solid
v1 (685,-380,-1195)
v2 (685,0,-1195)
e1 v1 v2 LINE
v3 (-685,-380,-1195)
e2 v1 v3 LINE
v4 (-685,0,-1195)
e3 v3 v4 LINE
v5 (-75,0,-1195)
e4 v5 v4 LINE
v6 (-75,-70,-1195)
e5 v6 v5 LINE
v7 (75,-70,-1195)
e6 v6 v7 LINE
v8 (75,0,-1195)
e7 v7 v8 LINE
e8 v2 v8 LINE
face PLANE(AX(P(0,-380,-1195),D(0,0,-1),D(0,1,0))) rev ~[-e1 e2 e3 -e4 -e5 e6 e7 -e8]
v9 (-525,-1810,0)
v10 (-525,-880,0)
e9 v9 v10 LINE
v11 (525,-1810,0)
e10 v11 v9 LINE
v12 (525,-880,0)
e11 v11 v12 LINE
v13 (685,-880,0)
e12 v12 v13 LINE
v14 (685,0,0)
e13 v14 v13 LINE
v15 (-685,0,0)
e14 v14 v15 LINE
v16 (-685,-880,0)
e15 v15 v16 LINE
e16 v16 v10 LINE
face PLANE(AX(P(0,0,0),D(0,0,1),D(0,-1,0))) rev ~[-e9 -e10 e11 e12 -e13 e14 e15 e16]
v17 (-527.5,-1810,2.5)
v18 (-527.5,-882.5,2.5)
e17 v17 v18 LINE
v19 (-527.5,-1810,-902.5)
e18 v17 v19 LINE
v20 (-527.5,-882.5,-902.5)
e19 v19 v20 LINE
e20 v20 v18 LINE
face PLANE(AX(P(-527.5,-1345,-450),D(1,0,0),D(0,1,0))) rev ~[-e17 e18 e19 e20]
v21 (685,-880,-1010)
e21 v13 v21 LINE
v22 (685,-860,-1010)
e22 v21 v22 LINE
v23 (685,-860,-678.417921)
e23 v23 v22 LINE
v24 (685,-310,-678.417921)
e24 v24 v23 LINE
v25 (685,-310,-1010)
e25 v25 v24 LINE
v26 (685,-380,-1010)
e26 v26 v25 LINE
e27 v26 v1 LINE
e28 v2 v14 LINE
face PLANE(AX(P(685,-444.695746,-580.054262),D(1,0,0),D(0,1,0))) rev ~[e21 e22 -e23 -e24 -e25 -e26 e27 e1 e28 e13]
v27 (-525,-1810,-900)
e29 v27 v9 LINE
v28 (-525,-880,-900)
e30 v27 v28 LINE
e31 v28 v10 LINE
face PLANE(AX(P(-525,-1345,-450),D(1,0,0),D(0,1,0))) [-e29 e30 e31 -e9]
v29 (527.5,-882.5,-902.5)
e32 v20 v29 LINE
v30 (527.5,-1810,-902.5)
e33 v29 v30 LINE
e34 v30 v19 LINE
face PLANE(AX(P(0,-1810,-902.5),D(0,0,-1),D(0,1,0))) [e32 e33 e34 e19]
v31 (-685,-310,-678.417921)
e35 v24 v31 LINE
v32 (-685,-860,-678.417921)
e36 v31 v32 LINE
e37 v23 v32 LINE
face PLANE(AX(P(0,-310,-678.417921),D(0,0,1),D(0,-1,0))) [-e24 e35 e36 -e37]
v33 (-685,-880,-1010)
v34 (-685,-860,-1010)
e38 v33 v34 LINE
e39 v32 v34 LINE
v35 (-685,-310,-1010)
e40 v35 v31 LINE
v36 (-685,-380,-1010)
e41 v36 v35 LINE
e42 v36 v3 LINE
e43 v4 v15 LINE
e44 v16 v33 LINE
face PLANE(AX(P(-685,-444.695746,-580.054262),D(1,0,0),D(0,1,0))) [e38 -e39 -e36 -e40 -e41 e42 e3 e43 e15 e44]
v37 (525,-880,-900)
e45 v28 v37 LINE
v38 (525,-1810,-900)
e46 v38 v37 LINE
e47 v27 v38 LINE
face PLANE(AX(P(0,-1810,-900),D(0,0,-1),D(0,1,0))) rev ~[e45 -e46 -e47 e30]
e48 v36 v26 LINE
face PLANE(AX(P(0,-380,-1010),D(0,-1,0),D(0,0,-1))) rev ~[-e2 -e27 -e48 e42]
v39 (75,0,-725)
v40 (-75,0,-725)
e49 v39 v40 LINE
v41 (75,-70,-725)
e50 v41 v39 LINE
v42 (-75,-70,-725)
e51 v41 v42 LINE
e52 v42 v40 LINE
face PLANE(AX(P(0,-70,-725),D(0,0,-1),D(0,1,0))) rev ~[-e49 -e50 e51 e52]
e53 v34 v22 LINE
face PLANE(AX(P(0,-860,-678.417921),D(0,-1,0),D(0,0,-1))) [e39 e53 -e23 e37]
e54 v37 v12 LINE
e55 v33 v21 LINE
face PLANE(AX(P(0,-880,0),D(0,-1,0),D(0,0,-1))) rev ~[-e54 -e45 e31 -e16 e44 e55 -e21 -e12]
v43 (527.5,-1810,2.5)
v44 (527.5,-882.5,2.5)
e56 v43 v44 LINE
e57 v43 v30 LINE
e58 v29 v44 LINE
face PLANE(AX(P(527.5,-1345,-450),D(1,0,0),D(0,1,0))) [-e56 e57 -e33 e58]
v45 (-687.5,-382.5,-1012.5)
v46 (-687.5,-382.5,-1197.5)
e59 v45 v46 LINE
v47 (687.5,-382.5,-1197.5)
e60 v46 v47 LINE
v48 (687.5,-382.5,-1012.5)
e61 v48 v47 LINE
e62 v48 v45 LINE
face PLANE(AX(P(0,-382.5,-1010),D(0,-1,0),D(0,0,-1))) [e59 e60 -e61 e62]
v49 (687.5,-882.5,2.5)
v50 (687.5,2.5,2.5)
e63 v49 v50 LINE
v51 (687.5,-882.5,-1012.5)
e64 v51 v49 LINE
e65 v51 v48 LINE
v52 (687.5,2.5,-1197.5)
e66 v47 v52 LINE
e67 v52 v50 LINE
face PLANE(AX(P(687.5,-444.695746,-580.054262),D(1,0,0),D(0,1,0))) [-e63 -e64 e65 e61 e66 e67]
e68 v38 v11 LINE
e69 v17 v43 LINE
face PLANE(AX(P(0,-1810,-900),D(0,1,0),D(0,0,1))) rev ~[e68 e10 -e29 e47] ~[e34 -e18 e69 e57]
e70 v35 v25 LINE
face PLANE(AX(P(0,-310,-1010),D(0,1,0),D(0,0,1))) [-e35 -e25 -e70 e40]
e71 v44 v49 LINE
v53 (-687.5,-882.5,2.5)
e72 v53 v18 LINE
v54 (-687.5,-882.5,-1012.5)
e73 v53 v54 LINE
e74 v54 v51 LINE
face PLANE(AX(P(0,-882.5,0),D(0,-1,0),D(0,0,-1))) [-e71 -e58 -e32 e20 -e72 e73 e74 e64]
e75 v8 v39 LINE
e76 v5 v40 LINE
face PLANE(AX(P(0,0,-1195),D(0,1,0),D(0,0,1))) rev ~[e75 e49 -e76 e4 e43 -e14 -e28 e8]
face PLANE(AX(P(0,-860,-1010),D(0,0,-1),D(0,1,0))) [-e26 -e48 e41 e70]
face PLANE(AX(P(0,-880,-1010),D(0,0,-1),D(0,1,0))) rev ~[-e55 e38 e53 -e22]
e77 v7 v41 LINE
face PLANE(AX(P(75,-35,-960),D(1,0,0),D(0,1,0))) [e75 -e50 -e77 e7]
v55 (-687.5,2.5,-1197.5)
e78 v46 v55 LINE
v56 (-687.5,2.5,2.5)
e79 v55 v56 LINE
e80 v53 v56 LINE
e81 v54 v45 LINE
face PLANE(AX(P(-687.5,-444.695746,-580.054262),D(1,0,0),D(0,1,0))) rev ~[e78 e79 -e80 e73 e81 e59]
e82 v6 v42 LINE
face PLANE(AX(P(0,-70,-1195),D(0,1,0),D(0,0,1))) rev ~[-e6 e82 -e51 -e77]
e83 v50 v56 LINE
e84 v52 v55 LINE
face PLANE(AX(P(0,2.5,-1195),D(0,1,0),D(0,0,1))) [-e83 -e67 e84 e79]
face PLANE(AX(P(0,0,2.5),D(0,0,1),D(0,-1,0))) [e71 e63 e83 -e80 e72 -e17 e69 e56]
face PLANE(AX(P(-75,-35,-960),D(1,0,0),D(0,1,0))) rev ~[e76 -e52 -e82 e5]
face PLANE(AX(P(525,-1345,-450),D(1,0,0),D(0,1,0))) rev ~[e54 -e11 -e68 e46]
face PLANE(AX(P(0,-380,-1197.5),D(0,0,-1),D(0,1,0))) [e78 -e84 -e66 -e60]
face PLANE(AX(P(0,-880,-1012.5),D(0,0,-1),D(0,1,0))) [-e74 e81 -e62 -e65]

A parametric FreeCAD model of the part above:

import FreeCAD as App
import Part
import Sketcher

V = App.Vector
Q = App.Units.Quantity


def faces_at(feature, points):
    """Names of the faces that lie closest to the given points."""
    faces = feature.Shape.Faces
    near = lambda p: min(range(len(faces)), key=lambda i: faces[i].distToShape(Part.Vertex(*p))[0])
    return sorted({f"Face{near(p) + 1}" for p in points})

doc = App.newDocument("Part")
body = doc.addObject("PartDesign::Body", "Body")

# Sketch on YZ plane
sketch1 = body.newObject("Sketcher::SketchObject", "Sketch")
sketch1.AttachmentSupport = (doc.getObject("YZ_Plane"), [""])
sketch1.MapMode = "FlatFace"
sketch1.addGeometry([
    Part.LineSegment(V(0, 0, 0), V(-880, 0, 0)),  # 0
    Part.LineSegment(V(-880, 0, 0), V(-880, -1010, 0)),  # 1
    Part.LineSegment(V(-880, -1010, 0), V(-380, -1010, 0)),  # 2
    Part.LineSegment(V(-380, -1010, 0), V(-380, -1195, 0)),  # 3
    Part.LineSegment(V(-380, -1195, 0), V(0, -1195, 0)),  # 4
    Part.LineSegment(V(0, -1195, 0), V(0, 0, 0)),  # 5
], False)
sketch1.addConstraint([
    Sketcher.Constraint("Coincident", 0, 2, 1, 1),
    Sketcher.Constraint("Coincident", 1, 2, 2, 1),
    Sketcher.Constraint("Coincident", 2, 2, 3, 1),
    Sketcher.Constraint("Coincident", 3, 2, 4, 1),
    Sketcher.Constraint("Coincident", 4, 2, 5, 1),
    Sketcher.Constraint("Coincident", 5, 2, 0, 1),
    Sketcher.Constraint("Horizontal", 0),
    Sketcher.Constraint("Vertical", 1),
    Sketcher.Constraint("Horizontal", 2),
    Sketcher.Constraint("Vertical", 3),
    Sketcher.Constraint("Horizontal", 4),
    Sketcher.Constraint("Vertical", 5),
    Sketcher.Constraint("Coincident", 5, 2, -1, 1),
    Sketcher.Constraint("DistanceX", 0, 2, 0, 1, Q("880 mm")),
    Sketcher.Constraint("DistanceX", 2, 1, 2, 2, Q("500 mm")),
    Sketcher.Constraint("DistanceY", 1, 2, 1, 1, Q("1010 mm")),
    Sketcher.Constraint("DistanceY", 3, 2, 3, 1, Q("185 mm")),
])
pad1 = body.newObject("PartDesign::Pad", "Pad")
pad1.Profile = sketch1
pad1.Length = 1370
pad1.Midplane = True

# Sketch on YZ plane
sketch2 = body.newObject("Sketcher::SketchObject", "Sketch001")
sketch2.AttachmentSupport = (doc.getObject("YZ_Plane"), [""])
sketch2.MapMode = "FlatFace"
sketch2.addGeometry([
    Part.LineSegment(V(-1810, 0, 0), V(-1810, -900, 0)),
    Part.LineSegment(V(-1810, -900, 0), V(-880, -900, 0)),
    Part.LineSegment(V(-880, -900, 0), V(-880, 0, 0)),
    Part.LineSegment(V(-880, 0, 0), V(-1810, 0, 0)),
], False)
sketch2.addConstraint([
    Sketcher.Constraint("Coincident", 0, 2, 1, 1),
    Sketcher.Constraint("Coincident", 1, 2, 2, 1),
    Sketcher.Constraint("Coincident", 2, 2, 3, 1),
    Sketcher.Constraint("Coincident", 3, 2, 0, 1),
    Sketcher.Constraint("Vertical", 0),
    Sketcher.Constraint("Horizontal", 1),
    Sketcher.Constraint("Vertical", 2),
    Sketcher.Constraint("Horizontal", 3),
    Sketcher.Constraint("PointOnObject", 2, 2, -1),
    Sketcher.Constraint("DistanceX", 1, 1, 1, 2, Q("930 mm")),
    Sketcher.Constraint("DistanceY", 0, 2, 0, 1, Q("900 mm")),
    Sketcher.Constraint("DistanceX", 0, 2, -1, 1, Q("1810 mm")),
])
pad2 = body.newObject("PartDesign::Pad", "Pad001")
pad2.Profile = sketch2
pad2.Length = 1050
pad2.Midplane = True
doc.recompute()

thickness = body.newObject("PartDesign::Thickness", "Thickness")
thickness.Base = (pad2, faces_at(pad2, [(0, -1810, -450)]))
thickness.Value = 2.5
thickness.Reversed = False
thickness.Join = "Intersection"

# Sketch on YZ plane
sketch3 = body.newObject("Sketcher::SketchObject", "Sketch002")
sketch3.AttachmentSupport = (doc.getObject("YZ_Plane"), [""])
sketch3.MapMode = "FlatFace"
sketch3.addGeometry([
    Part.LineSegment(V(-860, -678, 0), V(-860, -1010, 0)),
    Part.LineSegment(V(-860, -1010, 0), V(-310, -1010, 0)),
    Part.LineSegment(V(-310, -1010, 0), V(-310, -678, 0)),
    Part.LineSegment(V(-310, -678, 0), V(-860, -678, 0)),
], False)
sketch3.addConstraint([
    Sketcher.Constraint("Coincident", 0, 2, 1, 1),
    Sketcher.Constraint("Coincident", 1, 2, 2, 1),
    Sketcher.Constraint("Coincident", 2, 2, 3, 1),
    Sketcher.Constraint("Coincident", 3, 2, 0, 1),
    Sketcher.Constraint("Vertical", 0),
    Sketcher.Constraint("Horizontal", 1),
    Sketcher.Constraint("Vertical", 2),
    Sketcher.Constraint("Horizontal", 3),
    Sketcher.Constraint("DistanceX", 1, 1, 1, 2, Q("550 mm")),
    Sketcher.Constraint("DistanceX", 0, 2, -1, 1, Q("860 mm")),
    Sketcher.Constraint("DistanceY", 0, 2, -1, 1, Q("1010 mm")),
    Sketcher.Constraint("DistanceY", 0, 2, 0, 1, Q("331.582079 mm")),
])
pad3 = body.newObject("PartDesign::Pad", "Pad002")
pad3.Profile = sketch3
pad3.Length = 1370
pad3.Midplane = True

# Sketch on YZ plane
sketch4 = body.newObject("Sketcher::SketchObject", "Sketch003")
sketch4.AttachmentSupport = (doc.getObject("YZ_Plane"), [""])
sketch4.MapMode = "FlatFace"
sketch4.addGeometry([
    Part.LineSegment(V(-70, -725, 0), V(-70, -1195, 0)),
    Part.LineSegment(V(-70, -1195, 0), V(0, -1195, 0)),
    Part.LineSegment(V(0, -1195, 0), V(0, -725, 0)),
    Part.LineSegment(V(0, -725, 0), V(-70, -725, 0)),
], False)
sketch4.addConstraint([
    Sketcher.Constraint("Coincident", 0, 2, 1, 1),
    Sketcher.Constraint("Coincident", 1, 2, 2, 1),
    Sketcher.Constraint("Coincident", 2, 2, 3, 1),
    Sketcher.Constraint("Coincident", 3, 2, 0, 1),
    Sketcher.Constraint("Vertical", 0),
    Sketcher.Constraint("Horizontal", 1),
    Sketcher.Constraint("Vertical", 2),
    Sketcher.Constraint("Horizontal", 3),
    Sketcher.Constraint("PointOnObject", 1, 2, -2),
    Sketcher.Constraint("DistanceX", 1, 1, 1, 2, Q("70 mm")),
    Sketcher.Constraint("DistanceY", 0, 2, 0, 1, Q("470 mm")),
    Sketcher.Constraint("DistanceY", 0, 2, -1, 1, Q("1195 mm")),
])
pad4 = body.newObject("PartDesign::Pad", "Pad003")
pad4.Profile = sketch4
pad4.Length = 150
pad4.Midplane = True

doc.recompute()
